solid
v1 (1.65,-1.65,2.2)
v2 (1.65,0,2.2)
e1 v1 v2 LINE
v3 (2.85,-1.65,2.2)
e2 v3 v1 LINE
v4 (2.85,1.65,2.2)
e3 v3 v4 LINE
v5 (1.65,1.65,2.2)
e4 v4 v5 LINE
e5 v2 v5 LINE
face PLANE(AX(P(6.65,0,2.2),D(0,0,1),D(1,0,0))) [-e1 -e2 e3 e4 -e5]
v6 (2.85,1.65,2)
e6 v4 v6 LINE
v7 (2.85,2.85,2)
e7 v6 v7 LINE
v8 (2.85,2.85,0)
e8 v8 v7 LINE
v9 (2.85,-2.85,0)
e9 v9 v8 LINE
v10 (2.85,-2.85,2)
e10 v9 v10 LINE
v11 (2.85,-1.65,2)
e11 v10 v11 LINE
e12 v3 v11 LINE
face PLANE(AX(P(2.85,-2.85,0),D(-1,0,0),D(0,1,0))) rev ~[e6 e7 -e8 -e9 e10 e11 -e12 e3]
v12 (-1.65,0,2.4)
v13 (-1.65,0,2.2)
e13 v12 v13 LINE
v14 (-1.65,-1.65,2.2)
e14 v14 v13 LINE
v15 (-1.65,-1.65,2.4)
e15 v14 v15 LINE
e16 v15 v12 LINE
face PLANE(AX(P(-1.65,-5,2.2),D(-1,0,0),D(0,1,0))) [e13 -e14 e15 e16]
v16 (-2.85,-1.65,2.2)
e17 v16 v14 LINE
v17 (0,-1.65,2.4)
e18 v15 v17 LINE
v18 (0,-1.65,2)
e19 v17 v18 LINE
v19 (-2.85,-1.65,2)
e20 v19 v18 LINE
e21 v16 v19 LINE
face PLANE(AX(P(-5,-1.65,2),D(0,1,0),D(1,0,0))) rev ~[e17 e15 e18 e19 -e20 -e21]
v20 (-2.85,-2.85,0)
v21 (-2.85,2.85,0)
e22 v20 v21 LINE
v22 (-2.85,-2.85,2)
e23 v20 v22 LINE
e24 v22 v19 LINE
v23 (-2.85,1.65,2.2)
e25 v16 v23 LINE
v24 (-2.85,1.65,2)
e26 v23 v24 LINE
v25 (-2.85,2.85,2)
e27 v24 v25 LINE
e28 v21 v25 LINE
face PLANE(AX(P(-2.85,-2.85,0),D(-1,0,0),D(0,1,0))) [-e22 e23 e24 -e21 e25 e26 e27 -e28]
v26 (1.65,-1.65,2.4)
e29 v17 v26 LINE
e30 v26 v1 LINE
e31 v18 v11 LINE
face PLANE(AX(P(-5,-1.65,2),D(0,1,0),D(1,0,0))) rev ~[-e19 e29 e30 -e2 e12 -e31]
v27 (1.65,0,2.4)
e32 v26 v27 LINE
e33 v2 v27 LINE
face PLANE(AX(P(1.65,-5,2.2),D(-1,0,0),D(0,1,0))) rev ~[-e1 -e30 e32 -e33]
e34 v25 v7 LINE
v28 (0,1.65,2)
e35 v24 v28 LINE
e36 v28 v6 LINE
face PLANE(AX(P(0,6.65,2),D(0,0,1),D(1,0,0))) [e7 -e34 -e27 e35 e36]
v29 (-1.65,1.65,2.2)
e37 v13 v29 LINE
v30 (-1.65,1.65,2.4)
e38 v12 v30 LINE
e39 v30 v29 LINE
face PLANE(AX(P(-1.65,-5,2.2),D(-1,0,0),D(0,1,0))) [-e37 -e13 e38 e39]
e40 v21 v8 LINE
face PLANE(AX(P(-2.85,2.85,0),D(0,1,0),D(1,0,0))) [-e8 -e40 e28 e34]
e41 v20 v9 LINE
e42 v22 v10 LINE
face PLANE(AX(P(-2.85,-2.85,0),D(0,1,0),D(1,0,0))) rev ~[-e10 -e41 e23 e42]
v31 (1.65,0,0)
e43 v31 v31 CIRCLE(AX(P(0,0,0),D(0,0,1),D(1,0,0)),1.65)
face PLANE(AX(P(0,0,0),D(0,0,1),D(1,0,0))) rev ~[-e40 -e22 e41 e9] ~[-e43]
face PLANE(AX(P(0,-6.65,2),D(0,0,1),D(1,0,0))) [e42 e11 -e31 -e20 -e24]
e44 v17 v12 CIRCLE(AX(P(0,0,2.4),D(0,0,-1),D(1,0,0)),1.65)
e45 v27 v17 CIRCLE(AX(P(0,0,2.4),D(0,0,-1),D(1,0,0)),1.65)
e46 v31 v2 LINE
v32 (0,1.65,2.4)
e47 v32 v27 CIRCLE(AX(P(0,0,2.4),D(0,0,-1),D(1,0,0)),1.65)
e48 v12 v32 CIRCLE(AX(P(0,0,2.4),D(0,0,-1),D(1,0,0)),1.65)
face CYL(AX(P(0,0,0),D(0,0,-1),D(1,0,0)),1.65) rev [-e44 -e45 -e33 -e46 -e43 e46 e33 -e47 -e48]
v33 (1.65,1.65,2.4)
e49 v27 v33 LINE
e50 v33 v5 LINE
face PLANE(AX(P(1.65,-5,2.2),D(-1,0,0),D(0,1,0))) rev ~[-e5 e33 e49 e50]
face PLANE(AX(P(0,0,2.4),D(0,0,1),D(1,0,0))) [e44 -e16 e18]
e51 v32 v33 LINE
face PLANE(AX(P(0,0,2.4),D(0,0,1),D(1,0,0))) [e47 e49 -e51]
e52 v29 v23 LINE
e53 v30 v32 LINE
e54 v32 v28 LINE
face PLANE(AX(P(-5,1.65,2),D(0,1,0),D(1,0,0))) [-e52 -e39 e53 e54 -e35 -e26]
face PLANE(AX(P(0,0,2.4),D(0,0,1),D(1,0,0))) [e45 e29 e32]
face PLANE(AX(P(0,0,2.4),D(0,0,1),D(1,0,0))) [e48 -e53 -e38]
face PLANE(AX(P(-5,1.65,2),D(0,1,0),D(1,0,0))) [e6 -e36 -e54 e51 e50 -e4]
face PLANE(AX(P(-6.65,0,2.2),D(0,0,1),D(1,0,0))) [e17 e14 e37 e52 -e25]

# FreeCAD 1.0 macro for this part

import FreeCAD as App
import Part
import Sketcher
Q = App.Units.Quantity


def add_polygon(sketch, points):
    """Adds a closed chain of lines whose ends are joined by coincident constraints."""
    first, n = sketch.GeometryCount, len(points)
    for a, b in zip(points, points[1:] + points[:1]):
        sketch.addGeometry(Part.LineSegment(App.Vector(*a, 0), App.Vector(*b, 0)), False)
    for i in range(n):
        sketch.addConstraint(Sketcher.Constraint("Coincident", first + i, 2, first + (i + 1) % n, 1))

doc = App.newDocument("Part")
body = doc.addObject("PartDesign::Body", "Body")

sketch1 = doc.addObject("Sketcher::SketchObject", "Sketch")
body.addObject(sketch1)
sketch1.AttachmentSupport = (doc.XY_Plane, [""])
sketch1.MapMode = "FlatFace"
sketch1.addGeometry(Part.Circle(App.Vector(0, 0, 0), App.Vector(0, 0, 1), 1.6), False)
sketch1.addConstraint([
    Sketcher.Constraint("Coincident", 0, 3, -1, 1),
    Sketcher.Constraint("Diameter", 0, Q("3.3 mm")),
])
pad1 = doc.addObject("PartDesign::Pad", "Pad")
body.addObject(pad1)
pad1.Profile = sketch1
pad1.Length = 10
body2 = doc.addObject("PartDesign::Body", "Body001")

sketch2 = doc.addObject("Sketcher::SketchObject", "Sketch001")
body2.addObject(sketch2)
sketch2.AttachmentSupport = (doc.getObject("XY_Plane001"), [""])
sketch2.MapMode = "FlatFace"
sketch2.AttachmentOffset = App.Placement(App.Vector(0, 0, 2), App.Rotation())
add_polygon(sketch2, [(-5, -2), (-5, -12), (5, -12), (5, -2)])
sketch2.addConstraint([
    Sketcher.Constraint("Vertical", 0),
    Sketcher.Constraint("Horizontal", 1),
    Sketcher.Constraint("Vertical", 2),
    Sketcher.Constraint("Horizontal", 3),
    Sketcher.Constraint("Equal", 3, 0),
    Sketcher.Constraint("DistanceX", 1, 1, 1, 2, Q("10 mm")),
    Sketcher.Constraint("DistanceX", 0, 2, -1, 1, Q("5 mm")),
    Sketcher.Constraint("DistanceY", 0, 2, -1, 1, Q("11.65 mm")),
])
pad2 = doc.addObject("PartDesign::Pad", "Pad001")
body2.addObject(pad2)
pad2.Profile = sketch2
pad2.Length = 0.4
body3 = doc.addObject("PartDesign::Body", "Body002")

sketch3 = doc.addObject("Sketcher::SketchObject", "Sketch002")
body3.addObject(sketch3)
sketch3.AttachmentSupport = (doc.getObject("XY_Plane002"), [""])
sketch3.MapMode = "FlatFace"
sketch3.AttachmentOffset = App.Placement(App.Vector(0, 0, 2.2), App.Rotation())
add_polygon(sketch3, [(-12, 5), (-12, -5), (-2, -5), (-2, 5)])
sketch3.addConstraint([
    Sketcher.Constraint("Vertical", 0),
    Sketcher.Constraint("Horizontal", 1),
    Sketcher.Constraint("Vertical", 2),
    Sketcher.Constraint("Horizontal", 3),
    Sketcher.Constraint("Equal", 3, 0),
    Sketcher.Constraint("DistanceX", 1, 1, 1, 2, Q("10 mm")),
    Sketcher.Constraint("DistanceY", 0, 2, -1, 1, Q("5 mm")),
    Sketcher.Constraint("DistanceX", 0, 2, -1, 1, Q("11.65 mm")),
])
pad3 = doc.addObject("PartDesign::Pad", "Pad002")
body3.addObject(pad3)
pad3.Profile = sketch3
pad3.Length = 0.2
body4 = doc.addObject("PartDesign::Body", "Body003")

sketch4 = doc.addObject("Sketcher::SketchObject", "Sketch003")
body4.addObject(sketch4)
sketch4.AttachmentSupport = (doc.getObject("XY_Plane003"), [""])
sketch4.MapMode = "FlatFace"
sketch4.AttachmentOffset = App.Placement(App.Vector(0, 0, 2), App.Rotation())
add_polygon(sketch4, [(-5, 12), (-5, 2), (5, 2), (5, 12)])
sketch4.addConstraint([
    Sketcher.Constraint("Vertical", 0),
    Sketcher.Constraint("Horizontal", 1),
    Sketcher.Constraint("Vertical", 2),
    Sketcher.Constraint("Horizontal", 3),
    Sketcher.Constraint("Equal", 3, 0),
    Sketcher.Constraint("DistanceX", 1, 1, 1, 2, Q("10 mm")),
    Sketcher.Constraint("DistanceX", 0, 2, -1, 1, Q("5 mm")),
    Sketcher.Constraint("DistanceY", -1, 1, 0, 2, Q("1.65 mm")),
])
pad4 = doc.addObject("PartDesign::Pad", "Pad003")
body4.addObject(pad4)
pad4.Profile = sketch4
pad4.Length = 0.4
body5 = doc.addObject("PartDesign::Body", "Body004")
body5.AllowCompound = True

sketch5 = doc.addObject("Sketcher::SketchObject", "Sketch004")
body5.addObject(sketch5)
sketch5.AttachmentSupport = (doc.getObject("XY_Plane004"), [""])
sketch5.MapMode = "FlatFace"
sketch5.AttachmentOffset = App.Placement(App.Vector(0, 0, 2.2), App.Rotation())
add_polygon(sketch5, [(2, 5), (2, -5), (12, -5), (12, 5)])
sketch5.addConstraint([
    Sketcher.Constraint("Vertical", 0),
    Sketcher.Constraint("Horizontal", 1),
    Sketcher.Constraint("Vertical", 2),
    Sketcher.Constraint("Horizontal", 3),
    Sketcher.Constraint("Equal", 3, 0),
    Sketcher.Constraint("DistanceX", 1, 1, 1, 2, Q("10 mm")),
    Sketcher.Constraint("DistanceY", 0, 2, -1, 1, Q("5 mm")),
    Sketcher.Constraint("DistanceX", -1, 1, 0, 2, Q("1.65 mm")),
])
pad5 = doc.addObject("PartDesign::Pad", "Pad004")
body5.addObject(pad5)
pad5.Profile = sketch5
pad5.Length = 0.2
doc.recompute()

boolean = doc.addObject("PartDesign::Boolean", "Boolean")
body5.addObject(boolean)
boolean.Type = "Fuse"
boolean.addObjects([body2])
doc.recompute()

boolean2 = doc.addObject("PartDesign::Boolean", "Boolean001")
body5.addObject(boolean2)
boolean2.Type = "Fuse"
boolean2.addObjects([body3])
doc.recompute()

boolean3 = doc.addObject("PartDesign::Boolean", "Boolean002")
body5.addObject(boolean3)
boolean3.Type = "Fuse"
boolean3.addObjects([body4])
doc.recompute()

boolean4 = doc.addObject("PartDesign::Boolean", "Boolean003")
body5.addObject(boolean4)
boolean4.Type = "Fuse"
boolean4.addObjects([body])
body6 = doc.addObject("PartDesign::Body", "Body005")

sketch6 = doc.addObject("Sketcher::SketchObject", "Sketch005")
body6.addObject(sketch6)
sketch6.AttachmentSupport = (doc.getObject("XY_Plane005"), [""])
sketch6.MapMode = "FlatFace"
add_polygon(sketch6, [(-3, 3), (-3, -3), (3, -3), (3, 3)])
sketch6.addConstraint([
    Sketcher.Constraint("Vertical", 0),
    Sketcher.Constraint("Horizontal", 1),
    Sketcher.Constraint("Vertical", 2),
    Sketcher.Constraint("Horizontal", 3),
    Sketcher.Constraint("Symmetric", 0, 2, 2, 2, -1, 1),
    Sketcher.Constraint("Equal", 3, 0),
    Sketcher.Constraint("DistanceX", 1, 1, 1, 2, Q("5.7 mm")),
])
pad6 = doc.addObject("PartDesign::Pad", "Pad005")
body6.addObject(pad6)
pad6.Profile = sketch6
pad6.Length = 2.4
doc.recompute()

boolean5 = doc.addObject("PartDesign::Boolean", "Boolean004")
body6.addObject(boolean5)
boolean5.Type = "Cut"
boolean5.addObjects([body5])

doc.recompute()
